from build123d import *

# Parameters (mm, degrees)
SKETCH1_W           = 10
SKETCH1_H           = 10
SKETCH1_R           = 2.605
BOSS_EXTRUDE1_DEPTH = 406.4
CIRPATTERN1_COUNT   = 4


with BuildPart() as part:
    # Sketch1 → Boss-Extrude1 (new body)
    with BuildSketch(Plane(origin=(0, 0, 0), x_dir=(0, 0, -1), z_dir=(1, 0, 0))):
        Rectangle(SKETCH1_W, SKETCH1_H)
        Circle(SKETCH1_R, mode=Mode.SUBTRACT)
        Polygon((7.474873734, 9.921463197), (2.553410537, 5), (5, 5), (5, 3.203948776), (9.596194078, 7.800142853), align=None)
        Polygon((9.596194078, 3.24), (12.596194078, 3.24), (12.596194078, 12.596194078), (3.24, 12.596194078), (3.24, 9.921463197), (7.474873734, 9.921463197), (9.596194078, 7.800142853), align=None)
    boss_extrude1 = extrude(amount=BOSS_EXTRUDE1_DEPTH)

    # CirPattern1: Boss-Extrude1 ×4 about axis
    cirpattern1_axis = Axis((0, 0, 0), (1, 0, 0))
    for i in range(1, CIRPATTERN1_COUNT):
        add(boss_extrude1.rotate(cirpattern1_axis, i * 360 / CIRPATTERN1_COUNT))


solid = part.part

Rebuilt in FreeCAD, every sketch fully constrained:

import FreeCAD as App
import Part
import Sketcher

V = App.Vector
Q = App.Units.Quantity


def add_polygon(sketch, points):
    """Adds a closed chain of lines whose ends are joined by coincident constraints."""
    first, n = sketch.GeometryCount, len(points)
    for a, b in zip(points, points[1:] + points[:1]):
        sketch.addGeometry(Part.LineSegment(App.Vector(*a, 0), App.Vector(*b, 0)), False)
    for i in range(n):
        sketch.addConstraint(Sketcher.Constraint("Coincident", first + i, 2, first + (i + 1) % n, 1))

doc = App.newDocument("Part")
body = doc.addObject("PartDesign::Body", "Body")

# Sketch on YZ plane
sketch1 = body.newObject("Sketcher::SketchObject", "Sketch")
sketch1.AttachmentSupport = (doc.getObject("YZ_Plane"), [""])
sketch1.MapMode = "FlatFace"
add_polygon(sketch1, [(5, 5), (-5, 5), (-5, -5), (3.203949, -5), (7.800143, -9.596194), (3.24, -9.596194), (3.24, -12.596194), (12.596194, -12.596194), (12.596194, -3.24), (9.921463, -3.24), (9.921463, -7.474874), (5, -2.553411)])  # lines 0-11
sketch1.addGeometry(Part.Circle(V(0, 0, 0), V(0, 0, 1), 2.605), False)  # 12
sketch1.addConstraint([
    Sketcher.Constraint("Horizontal", 0),
    Sketcher.Constraint("Vertical", 1),
    Sketcher.Constraint("Horizontal", 2),
    Sketcher.Constraint("Horizontal", 4),
    Sketcher.Constraint("Vertical", 5),
    Sketcher.Constraint("Horizontal", 6),
    Sketcher.Constraint("Vertical", 7),
    Sketcher.Constraint("Horizontal", 8),
    Sketcher.Constraint("Vertical", 9),
    Sketcher.Constraint("Vertical", 11),
    Sketcher.Constraint("Coincident", 12, 3, -1, 1),
    Sketcher.Constraint("Symmetric", 1, 2, 11, 2, -1, 1),
    Sketcher.Constraint("Parallel", 3, 10),
    Sketcher.Constraint("Equal", 0, 1),
    Sketcher.Constraint("Equal", 6, 7),
    Sketcher.Constraint("Diameter", 12, Q("5.21 mm")),
    Sketcher.Constraint("DistanceX", 0, 2, 0, 1, Q("10 mm")),
    Sketcher.Constraint("DistanceY", 5, 2, 5, 1, Q("3 mm")),
    Sketcher.Constraint("Angle", 3, Q("-45 deg")),
    Sketcher.Constraint("Distance", 3, Q("6.5 mm")),
    Sketcher.Constraint("Distance", 10, Q("6.96 mm")),
    Sketcher.Constraint("DistanceX", -1, 1, 4, 2, Q("3.24 mm")),
    Sketcher.Constraint("DistanceY", 7, 2, -1, 1, Q("3.24 mm")),
    Sketcher.Constraint("DistanceX", 2, 1, 2, 2, Q("8.203949 mm")),
    Sketcher.Constraint("DistanceY", 11, 1, 11, 2, Q("7.553411 mm")),
])
pad1 = body.newObject("PartDesign::Pad", "Pad")
pad1.Profile = sketch1
pad1.Length = 406.4
doc.recompute()

polarpattern = body.newObject("PartDesign::PolarPattern", "PolarPattern")
polarpattern.Originals = [pad1]
polarpattern.Axis = (doc.getObject("X_Axis"), [""])
polarpattern.Angle = 360
polarpattern.Occurrences = 4
body.Tip = polarpattern

doc.recompute()
